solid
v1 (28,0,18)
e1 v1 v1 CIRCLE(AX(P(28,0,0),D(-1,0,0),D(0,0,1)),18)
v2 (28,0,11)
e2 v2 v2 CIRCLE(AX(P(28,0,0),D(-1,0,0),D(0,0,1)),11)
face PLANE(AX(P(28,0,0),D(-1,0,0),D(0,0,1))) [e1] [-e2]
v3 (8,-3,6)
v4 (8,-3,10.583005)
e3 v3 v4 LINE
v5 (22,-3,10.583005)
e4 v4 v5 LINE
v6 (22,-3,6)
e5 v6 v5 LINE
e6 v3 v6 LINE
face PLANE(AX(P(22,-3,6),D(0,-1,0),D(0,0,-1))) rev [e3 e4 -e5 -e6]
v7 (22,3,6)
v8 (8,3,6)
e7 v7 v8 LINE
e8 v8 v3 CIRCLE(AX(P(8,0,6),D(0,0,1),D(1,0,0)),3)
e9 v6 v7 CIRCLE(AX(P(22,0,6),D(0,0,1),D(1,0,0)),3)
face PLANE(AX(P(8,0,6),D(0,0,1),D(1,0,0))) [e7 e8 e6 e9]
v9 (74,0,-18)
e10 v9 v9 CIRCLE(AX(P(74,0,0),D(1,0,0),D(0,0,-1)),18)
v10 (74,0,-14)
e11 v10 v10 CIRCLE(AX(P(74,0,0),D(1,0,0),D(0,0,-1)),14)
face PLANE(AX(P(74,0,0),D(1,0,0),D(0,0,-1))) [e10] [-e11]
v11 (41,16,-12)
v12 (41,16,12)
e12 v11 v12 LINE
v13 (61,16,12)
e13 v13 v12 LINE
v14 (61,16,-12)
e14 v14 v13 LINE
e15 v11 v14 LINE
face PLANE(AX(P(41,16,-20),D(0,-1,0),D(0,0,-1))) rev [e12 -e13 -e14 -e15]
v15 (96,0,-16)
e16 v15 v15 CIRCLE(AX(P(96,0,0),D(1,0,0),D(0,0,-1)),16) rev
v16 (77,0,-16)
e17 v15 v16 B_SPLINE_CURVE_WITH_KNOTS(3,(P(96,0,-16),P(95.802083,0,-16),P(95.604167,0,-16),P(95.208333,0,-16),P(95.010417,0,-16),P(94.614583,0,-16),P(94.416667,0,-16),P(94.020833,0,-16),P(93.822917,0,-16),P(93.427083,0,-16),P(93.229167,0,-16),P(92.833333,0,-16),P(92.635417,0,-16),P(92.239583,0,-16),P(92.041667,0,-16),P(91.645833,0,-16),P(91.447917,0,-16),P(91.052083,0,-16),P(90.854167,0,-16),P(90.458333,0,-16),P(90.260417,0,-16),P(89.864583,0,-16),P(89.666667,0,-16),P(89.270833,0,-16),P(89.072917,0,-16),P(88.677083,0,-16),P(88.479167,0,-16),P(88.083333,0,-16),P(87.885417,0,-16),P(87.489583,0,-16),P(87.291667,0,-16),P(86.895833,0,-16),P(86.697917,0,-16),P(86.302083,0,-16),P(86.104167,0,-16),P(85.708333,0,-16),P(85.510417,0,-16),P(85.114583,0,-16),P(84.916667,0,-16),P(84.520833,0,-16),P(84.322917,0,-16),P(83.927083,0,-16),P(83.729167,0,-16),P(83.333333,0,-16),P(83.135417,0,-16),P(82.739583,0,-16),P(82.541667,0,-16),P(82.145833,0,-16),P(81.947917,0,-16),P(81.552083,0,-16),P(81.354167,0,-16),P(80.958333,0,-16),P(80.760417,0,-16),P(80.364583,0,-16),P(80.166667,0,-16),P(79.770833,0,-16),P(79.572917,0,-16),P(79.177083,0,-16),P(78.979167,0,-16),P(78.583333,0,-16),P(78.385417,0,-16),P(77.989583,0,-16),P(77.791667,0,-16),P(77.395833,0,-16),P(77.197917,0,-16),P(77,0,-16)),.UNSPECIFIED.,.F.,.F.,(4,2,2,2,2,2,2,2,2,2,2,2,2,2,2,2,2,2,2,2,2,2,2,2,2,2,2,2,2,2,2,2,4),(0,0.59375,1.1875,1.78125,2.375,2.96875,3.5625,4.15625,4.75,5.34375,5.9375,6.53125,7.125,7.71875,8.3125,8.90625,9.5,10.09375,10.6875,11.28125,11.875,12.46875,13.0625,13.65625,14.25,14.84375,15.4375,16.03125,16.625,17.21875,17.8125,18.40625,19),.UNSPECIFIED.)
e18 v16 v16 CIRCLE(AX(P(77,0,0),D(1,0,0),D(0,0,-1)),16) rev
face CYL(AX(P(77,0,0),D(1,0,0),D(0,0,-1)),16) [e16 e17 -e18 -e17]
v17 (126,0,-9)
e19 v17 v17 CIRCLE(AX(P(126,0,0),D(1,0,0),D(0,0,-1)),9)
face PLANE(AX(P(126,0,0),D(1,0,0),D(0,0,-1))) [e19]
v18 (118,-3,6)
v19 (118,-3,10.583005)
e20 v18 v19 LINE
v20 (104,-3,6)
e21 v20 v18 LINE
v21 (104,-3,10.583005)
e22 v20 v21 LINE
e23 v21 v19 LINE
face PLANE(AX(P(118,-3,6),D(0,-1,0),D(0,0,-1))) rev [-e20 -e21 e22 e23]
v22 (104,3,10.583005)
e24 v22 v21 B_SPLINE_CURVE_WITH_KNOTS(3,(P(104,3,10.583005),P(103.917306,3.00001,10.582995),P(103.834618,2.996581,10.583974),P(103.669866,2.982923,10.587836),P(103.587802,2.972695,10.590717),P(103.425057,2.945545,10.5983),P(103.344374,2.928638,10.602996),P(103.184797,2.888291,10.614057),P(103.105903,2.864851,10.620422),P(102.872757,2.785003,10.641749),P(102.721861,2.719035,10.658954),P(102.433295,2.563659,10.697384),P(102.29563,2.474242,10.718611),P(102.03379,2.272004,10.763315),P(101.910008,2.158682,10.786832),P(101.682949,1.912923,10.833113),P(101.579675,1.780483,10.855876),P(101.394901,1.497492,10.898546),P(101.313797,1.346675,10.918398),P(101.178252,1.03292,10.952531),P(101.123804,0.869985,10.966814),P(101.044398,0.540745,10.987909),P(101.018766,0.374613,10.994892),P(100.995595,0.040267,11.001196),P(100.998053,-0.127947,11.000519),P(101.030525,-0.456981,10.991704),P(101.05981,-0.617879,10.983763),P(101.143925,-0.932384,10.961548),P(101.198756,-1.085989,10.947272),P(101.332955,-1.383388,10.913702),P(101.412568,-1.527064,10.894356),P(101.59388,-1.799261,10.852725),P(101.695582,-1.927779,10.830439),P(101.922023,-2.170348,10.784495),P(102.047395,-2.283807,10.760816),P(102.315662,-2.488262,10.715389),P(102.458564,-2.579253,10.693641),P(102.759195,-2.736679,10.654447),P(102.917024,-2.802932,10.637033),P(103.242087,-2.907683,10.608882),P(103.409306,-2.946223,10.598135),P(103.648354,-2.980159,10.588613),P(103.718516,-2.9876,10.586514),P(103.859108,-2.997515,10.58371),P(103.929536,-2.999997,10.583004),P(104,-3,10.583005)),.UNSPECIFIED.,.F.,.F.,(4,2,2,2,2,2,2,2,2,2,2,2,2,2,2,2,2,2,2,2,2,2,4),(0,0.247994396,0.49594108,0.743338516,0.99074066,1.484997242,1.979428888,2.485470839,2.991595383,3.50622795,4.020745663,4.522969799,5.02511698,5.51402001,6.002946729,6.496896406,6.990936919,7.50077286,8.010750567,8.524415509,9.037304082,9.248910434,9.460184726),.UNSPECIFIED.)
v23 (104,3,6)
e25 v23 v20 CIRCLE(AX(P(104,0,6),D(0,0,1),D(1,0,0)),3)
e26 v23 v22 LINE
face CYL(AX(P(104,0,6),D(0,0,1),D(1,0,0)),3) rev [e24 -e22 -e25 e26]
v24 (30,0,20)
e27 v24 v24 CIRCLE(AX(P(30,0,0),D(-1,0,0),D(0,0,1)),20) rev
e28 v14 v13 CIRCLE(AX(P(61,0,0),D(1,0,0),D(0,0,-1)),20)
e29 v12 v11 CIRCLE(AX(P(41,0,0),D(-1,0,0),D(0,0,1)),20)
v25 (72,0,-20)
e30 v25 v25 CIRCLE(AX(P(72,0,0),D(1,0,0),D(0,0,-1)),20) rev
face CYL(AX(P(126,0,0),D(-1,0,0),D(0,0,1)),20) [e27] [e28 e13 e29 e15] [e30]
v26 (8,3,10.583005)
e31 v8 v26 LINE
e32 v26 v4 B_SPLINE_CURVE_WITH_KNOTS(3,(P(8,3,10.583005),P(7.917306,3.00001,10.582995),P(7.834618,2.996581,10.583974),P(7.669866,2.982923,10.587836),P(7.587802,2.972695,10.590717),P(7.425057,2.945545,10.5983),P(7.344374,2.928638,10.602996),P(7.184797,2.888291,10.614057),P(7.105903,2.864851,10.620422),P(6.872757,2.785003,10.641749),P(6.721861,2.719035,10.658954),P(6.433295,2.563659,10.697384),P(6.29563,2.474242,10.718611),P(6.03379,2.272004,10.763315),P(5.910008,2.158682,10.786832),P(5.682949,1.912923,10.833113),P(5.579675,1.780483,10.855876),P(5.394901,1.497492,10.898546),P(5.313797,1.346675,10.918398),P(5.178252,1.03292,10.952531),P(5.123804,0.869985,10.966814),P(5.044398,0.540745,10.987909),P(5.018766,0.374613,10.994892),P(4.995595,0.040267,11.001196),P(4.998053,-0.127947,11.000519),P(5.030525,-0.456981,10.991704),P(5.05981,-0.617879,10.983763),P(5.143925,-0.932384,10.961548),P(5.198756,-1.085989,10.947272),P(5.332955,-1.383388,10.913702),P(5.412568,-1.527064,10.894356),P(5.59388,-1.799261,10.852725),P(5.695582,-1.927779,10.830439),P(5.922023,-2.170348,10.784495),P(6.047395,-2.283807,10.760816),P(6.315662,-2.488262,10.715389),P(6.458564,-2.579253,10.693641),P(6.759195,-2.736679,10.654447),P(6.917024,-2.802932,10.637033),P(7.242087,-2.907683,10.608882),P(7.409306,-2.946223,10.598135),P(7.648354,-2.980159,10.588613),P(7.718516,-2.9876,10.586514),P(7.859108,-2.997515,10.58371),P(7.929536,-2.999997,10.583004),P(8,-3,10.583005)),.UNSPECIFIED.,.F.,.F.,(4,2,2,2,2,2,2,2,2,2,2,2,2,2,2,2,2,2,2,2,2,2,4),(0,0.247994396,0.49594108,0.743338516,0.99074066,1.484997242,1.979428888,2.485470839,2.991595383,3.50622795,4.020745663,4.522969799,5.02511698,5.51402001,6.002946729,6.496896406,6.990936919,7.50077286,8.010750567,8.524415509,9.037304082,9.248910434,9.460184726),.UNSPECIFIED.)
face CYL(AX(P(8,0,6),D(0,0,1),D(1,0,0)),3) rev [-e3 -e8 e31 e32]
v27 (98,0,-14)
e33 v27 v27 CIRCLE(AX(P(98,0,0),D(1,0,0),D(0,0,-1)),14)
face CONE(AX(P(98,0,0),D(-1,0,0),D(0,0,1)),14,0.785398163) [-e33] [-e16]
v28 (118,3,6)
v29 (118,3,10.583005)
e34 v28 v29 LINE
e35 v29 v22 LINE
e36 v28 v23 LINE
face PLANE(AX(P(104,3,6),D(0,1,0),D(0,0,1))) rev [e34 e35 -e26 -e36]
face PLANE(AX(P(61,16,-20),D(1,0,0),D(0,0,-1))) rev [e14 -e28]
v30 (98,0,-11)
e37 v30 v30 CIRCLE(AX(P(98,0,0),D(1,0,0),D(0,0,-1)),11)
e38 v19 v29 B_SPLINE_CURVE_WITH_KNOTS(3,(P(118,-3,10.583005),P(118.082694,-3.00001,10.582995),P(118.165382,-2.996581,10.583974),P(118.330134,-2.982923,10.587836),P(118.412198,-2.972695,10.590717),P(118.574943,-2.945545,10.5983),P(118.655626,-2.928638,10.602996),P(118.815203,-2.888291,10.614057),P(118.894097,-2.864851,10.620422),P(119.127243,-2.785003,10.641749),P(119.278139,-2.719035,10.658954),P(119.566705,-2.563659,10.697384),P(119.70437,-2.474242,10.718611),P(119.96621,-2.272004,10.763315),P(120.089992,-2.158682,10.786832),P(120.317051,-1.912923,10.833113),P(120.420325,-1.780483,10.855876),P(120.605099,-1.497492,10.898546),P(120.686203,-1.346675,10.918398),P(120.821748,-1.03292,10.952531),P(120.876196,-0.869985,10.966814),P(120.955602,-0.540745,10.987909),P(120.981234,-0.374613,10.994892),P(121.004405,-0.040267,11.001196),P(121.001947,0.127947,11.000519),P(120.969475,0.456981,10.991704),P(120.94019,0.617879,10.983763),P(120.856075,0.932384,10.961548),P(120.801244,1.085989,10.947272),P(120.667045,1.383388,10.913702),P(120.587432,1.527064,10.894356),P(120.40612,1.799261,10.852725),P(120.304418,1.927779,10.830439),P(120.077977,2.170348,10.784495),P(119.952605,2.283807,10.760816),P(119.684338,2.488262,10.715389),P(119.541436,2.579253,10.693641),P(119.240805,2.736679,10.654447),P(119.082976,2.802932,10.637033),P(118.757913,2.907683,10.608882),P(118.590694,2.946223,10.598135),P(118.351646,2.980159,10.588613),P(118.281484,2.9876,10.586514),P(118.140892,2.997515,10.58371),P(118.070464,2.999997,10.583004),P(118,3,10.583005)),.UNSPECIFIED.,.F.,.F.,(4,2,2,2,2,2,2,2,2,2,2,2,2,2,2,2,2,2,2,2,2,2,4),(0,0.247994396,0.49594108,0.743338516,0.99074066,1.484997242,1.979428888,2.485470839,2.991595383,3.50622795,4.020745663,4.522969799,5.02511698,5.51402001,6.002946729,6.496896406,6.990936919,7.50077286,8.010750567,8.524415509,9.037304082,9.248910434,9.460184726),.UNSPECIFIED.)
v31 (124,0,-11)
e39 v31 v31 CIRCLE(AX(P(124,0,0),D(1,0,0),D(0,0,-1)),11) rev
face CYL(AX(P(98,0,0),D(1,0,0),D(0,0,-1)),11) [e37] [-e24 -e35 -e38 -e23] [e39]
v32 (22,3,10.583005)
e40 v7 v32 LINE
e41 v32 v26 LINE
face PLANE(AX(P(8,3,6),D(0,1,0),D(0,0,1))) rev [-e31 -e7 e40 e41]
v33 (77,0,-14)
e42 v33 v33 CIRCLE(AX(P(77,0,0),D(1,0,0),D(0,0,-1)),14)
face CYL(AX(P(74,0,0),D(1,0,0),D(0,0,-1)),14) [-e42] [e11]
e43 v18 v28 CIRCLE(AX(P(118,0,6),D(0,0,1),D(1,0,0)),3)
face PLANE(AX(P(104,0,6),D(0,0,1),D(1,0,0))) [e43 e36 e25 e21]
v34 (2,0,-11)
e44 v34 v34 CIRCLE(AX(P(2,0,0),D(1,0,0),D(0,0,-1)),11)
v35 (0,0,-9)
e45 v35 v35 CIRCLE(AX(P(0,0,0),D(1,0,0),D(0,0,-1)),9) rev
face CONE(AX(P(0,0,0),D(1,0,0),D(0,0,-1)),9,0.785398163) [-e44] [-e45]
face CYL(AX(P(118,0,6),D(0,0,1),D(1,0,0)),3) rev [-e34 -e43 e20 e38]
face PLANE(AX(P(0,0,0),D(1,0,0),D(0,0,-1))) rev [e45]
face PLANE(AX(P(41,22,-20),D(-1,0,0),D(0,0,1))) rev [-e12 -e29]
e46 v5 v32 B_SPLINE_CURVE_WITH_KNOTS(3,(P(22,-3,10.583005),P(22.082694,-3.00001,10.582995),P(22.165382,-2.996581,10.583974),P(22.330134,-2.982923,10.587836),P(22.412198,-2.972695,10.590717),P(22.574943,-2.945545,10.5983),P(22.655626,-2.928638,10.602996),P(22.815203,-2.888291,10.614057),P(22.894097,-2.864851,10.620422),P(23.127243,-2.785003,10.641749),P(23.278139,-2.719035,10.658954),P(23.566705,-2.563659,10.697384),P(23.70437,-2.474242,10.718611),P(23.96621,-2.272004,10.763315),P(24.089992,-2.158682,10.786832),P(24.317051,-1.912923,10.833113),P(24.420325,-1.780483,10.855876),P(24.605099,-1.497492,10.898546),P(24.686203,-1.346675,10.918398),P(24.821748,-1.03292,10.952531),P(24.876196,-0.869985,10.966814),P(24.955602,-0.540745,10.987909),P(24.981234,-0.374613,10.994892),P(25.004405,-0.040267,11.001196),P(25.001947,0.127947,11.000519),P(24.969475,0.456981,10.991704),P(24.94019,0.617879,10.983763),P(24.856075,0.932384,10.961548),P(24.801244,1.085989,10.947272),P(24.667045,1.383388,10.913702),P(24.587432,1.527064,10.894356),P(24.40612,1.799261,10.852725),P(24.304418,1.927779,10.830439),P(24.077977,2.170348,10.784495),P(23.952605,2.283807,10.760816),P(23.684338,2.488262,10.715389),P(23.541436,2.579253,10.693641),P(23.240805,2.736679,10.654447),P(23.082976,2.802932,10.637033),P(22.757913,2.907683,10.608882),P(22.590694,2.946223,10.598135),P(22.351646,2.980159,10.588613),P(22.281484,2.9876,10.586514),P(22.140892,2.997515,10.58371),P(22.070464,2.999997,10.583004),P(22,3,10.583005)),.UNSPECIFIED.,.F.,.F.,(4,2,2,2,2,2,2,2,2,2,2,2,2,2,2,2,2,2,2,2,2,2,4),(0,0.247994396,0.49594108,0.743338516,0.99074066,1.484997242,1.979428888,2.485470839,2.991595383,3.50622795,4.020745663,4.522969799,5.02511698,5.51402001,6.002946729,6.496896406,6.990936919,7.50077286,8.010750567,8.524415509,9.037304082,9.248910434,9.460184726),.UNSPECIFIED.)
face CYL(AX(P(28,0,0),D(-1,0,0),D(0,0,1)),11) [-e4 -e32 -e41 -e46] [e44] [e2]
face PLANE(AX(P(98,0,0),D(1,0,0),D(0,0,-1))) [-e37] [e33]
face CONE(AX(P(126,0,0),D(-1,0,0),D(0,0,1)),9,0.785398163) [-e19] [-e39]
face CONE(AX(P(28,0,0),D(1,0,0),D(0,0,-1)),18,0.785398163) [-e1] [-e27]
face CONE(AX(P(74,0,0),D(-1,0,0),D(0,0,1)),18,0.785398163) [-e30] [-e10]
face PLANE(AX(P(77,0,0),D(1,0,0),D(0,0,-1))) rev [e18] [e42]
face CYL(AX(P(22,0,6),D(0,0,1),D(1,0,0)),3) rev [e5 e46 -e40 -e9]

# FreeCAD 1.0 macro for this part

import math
import FreeCAD as App
import Part
import Sketcher

V = App.Vector
Q = App.Units.Quantity


def edges_at(feature, points):
    """Names of the edges that pass closest to the given points."""
    edges = feature.Shape.Edges
    near = lambda p: min(range(len(edges)), key=lambda i: edges[i].distToShape(Part.Vertex(*p))[0])
    return sorted({f"Edge{near(p) + 1}" for p in points})


def add_polygon(sketch, points):
    """Adds a closed chain of lines whose ends are joined by coincident constraints."""
    first, n = sketch.GeometryCount, len(points)
    for a, b in zip(points, points[1:] + points[:1]):
        sketch.addGeometry(Part.LineSegment(App.Vector(*a, 0), App.Vector(*b, 0)), False)
    for i in range(n):
        sketch.addConstraint(Sketcher.Constraint("Coincident", first + i, 2, first + (i + 1) % n, 1))

doc = App.newDocument("Part")
params = doc.addObject("Spreadsheet::Sheet", "Params")
for row, (alias, value) in enumerate([
    ("sketch1_diameter", "40 mm"),
    ("pad1_length", "126 mm"),
    ("sketch2_diameter", "22 mm"),
    ("pocket1_length", "28 mm"),
    ("sketch3_diameter", "22 mm"),
    ("pocket2_length", "28 mm"),
    ("sketch4_diameter", "32 mm"),
    ("pocket3_length", "21 mm"),
    ("sketch5_diameter", "28 mm"),
    ("pocket4_length", "3 mm"),
    ("chamfer_size", "2 mm"),
    ("sketch6_width", "20 mm"),
    ("sketch6_height", "6 mm"),
    ("sketch7_radius", "3 mm"),
    ("sketch7_width", "14 mm"),
    ("pocket6_length", "5 mm"),
], start=1):
    params.set(f"A{row}", alias)
    params.set(f"B{row}", "=" + value)
    params.setAlias(f"B{row}", alias)

body = doc.addObject("PartDesign::Body", "Body")

# Sketch on YZ plane
sketch1 = body.newObject("Sketcher::SketchObject", "Sketch")
sketch1.AttachmentSupport = (doc.getObject("YZ_Plane"), [""])
sketch1.MapMode = "FlatFace"
sketch1.addGeometry(Part.Circle(V(0, 0, 0), V(0, 0, 1), 20), False)
sketch1.addConstraint([
    Sketcher.Constraint("Coincident", 0, 3, -1, 1),
    Sketcher.Constraint("Diameter", 0, Q("40 mm")),
])
sketch1.setExpression("Constraints[1]", "Params.sketch1_diameter")
pad1 = body.newObject("PartDesign::Pad", "Pad")
pad1.Profile = sketch1
pad1.setExpression("Length", "Params.pad1_length")

# Sketch on YZ plane
sketch2 = body.newObject("Sketcher::SketchObject", "Sketch001")
sketch2.AttachmentSupport = (doc.getObject("YZ_Plane"), [""])
sketch2.MapMode = "FlatFace"
add_polygon(sketch2, [(34.812, -34.812), (-34.812, -34.812), (-34.812, 34.812), (34.812, 34.812)])  # lines 0-3
sketch2.addGeometry(Part.Circle(V(0, 0, 0), V(0, 0, 1), 11), False)  # 4
sketch2.addConstraint([
    Sketcher.Constraint("Horizontal", 0),
    Sketcher.Constraint("Vertical", 1),
    Sketcher.Constraint("Horizontal", 2),
    Sketcher.Constraint("Vertical", 3),
    Sketcher.Constraint("Coincident", 4, 3, -1, 1),
    Sketcher.Constraint("Symmetric", 0, 2, 2, 2, -1, 1),
    Sketcher.Constraint("Equal", 2, 1),
    Sketcher.Constraint("Diameter", 4, Q("22 mm")),
    Sketcher.Constraint("DistanceX", 0, 2, 0, 1, Q("69.624 mm")),
])
sketch2.setExpression("Constraints[11]", "Params.sketch2_diameter")
pocket1 = body.newObject("PartDesign::Pocket", "Pocket")
pocket1.Profile = sketch2
pocket1.setExpression("Length", "Params.pocket1_length")
pocket1.Reversed = True

# Sketch on YZ plane
sketch3 = body.newObject("Sketcher::SketchObject", "Sketch002")
sketch3.AttachmentSupport = (doc.getObject("YZ_Plane"), [""])
sketch3.MapMode = "FlatFace"
sketch3.AttachmentOffset = App.Placement(V(0, 0, 126), App.Rotation())
add_polygon(sketch3, [(34.812, 34.812), (-34.812, 34.812), (-34.812, -34.812), (34.812, -34.812)])  # lines 0-3
sketch3.addGeometry(Part.Circle(V(0, 0, 0), V(0, 0, 1), 11), False)  # 4
sketch3.addConstraint([
    Sketcher.Constraint("Horizontal", 0),
    Sketcher.Constraint("Vertical", 1),
    Sketcher.Constraint("Horizontal", 2),
    Sketcher.Constraint("Vertical", 3),
    Sketcher.Constraint("Coincident", 4, 3, -1, 1),
    Sketcher.Constraint("Symmetric", 0, 2, 2, 2, -1, 1),
    Sketcher.Constraint("Equal", 2, 1),
    Sketcher.Constraint("Diameter", 4, Q("22 mm")),
    Sketcher.Constraint("DistanceX", 0, 2, 0, 1, Q("69.624 mm")),
])
sketch3.setExpression("Constraints[11]", "Params.sketch3_diameter")
pocket2 = body.newObject("PartDesign::Pocket", "Pocket001")
pocket2.Profile = sketch3
pocket2.setExpression("Length", "Params.pocket2_length")

# Sketch on YZ plane
sketch4 = body.newObject("Sketcher::SketchObject", "Sketch003")
sketch4.AttachmentSupport = (doc.getObject("YZ_Plane"), [""])
sketch4.MapMode = "FlatFace"
sketch4.AttachmentOffset = App.Placement(V(0, 0, 98), App.Rotation())
add_polygon(sketch4, [(34.812, 34.812), (-34.812, 34.812), (-34.812, -34.812), (34.812, -34.812)])  # lines 0-3
sketch4.addGeometry(Part.Circle(V(0, 0, 0), V(0, 0, 1), 16), False)  # 4
sketch4.addConstraint([
    Sketcher.Constraint("Horizontal", 0),
    Sketcher.Constraint("Vertical", 1),
    Sketcher.Constraint("Horizontal", 2),
    Sketcher.Constraint("Vertical", 3),
    Sketcher.Constraint("Coincident", 4, 3, -1, 1),
    Sketcher.Constraint("Symmetric", 0, 2, 2, 2, -1, 1),
    Sketcher.Constraint("Equal", 2, 1),
    Sketcher.Constraint("Diameter", 4, Q("32 mm")),
    Sketcher.Constraint("DistanceX", 0, 2, 0, 1, Q("69.624 mm")),
])
sketch4.setExpression("Constraints[11]", "Params.sketch4_diameter")
pocket3 = body.newObject("PartDesign::Pocket", "Pocket002")
pocket3.Profile = sketch4
pocket3.setExpression("Length", "Params.pocket3_length")

# Sketch on YZ plane
sketch5 = body.newObject("Sketcher::SketchObject", "Sketch004")
sketch5.AttachmentSupport = (doc.getObject("YZ_Plane"), [""])
sketch5.MapMode = "FlatFace"
sketch5.AttachmentOffset = App.Placement(V(0, 0, 77), App.Rotation())
add_polygon(sketch5, [(34.812, 34.812), (-34.812, 34.812), (-34.812, -34.812), (34.812, -34.812)])  # lines 0-3
sketch5.addGeometry(Part.Circle(V(0, 0, 0), V(0, 0, 1), 14), False)  # 4
sketch5.addConstraint([
    Sketcher.Constraint("Horizontal", 0),
    Sketcher.Constraint("Vertical", 1),
    Sketcher.Constraint("Horizontal", 2),
    Sketcher.Constraint("Vertical", 3),
    Sketcher.Constraint("Coincident", 4, 3, -1, 1),
    Sketcher.Constraint("Symmetric", 0, 2, 2, 2, -1, 1),
    Sketcher.Constraint("Equal", 2, 1),
    Sketcher.Constraint("Diameter", 4, Q("28 mm")),
    Sketcher.Constraint("DistanceX", 0, 2, 0, 1, Q("69.624 mm")),
])
sketch5.setExpression("Constraints[11]", "Params.sketch5_diameter")
pocket4 = body.newObject("PartDesign::Pocket", "Pocket003")
pocket4.Profile = sketch5
pocket4.setExpression("Length", "Params.pocket4_length")
doc.recompute()

chamfer = body.newObject("PartDesign::Chamfer", "Chamfer")
chamfer.Base = (pocket4, edges_at(pocket4, [
    (0, 0, -11),
    (126, 0, -11),
    (98, 0, 16),
    (74, 0, 20),
    (28, 0, 20),
]))
chamfer.setExpression("Size", "Params.chamfer_size")

# Sketch on XY plane
sketch6 = body.newObject("Sketcher::SketchObject", "Sketch005")
sketch6.AttachmentSupport = (doc.getObject("XY_Plane"), [""])
sketch6.MapMode = "FlatFace"
add_polygon(sketch6, [(41, 22), (41, 16), (61, 16), (61, 22)])  # lines 0-3
sketch6.addConstraint([
    Sketcher.Constraint("Vertical", 0),
    Sketcher.Constraint("Horizontal", 1),
    Sketcher.Constraint("Vertical", 2),
    Sketcher.Constraint("Horizontal", 3),
    Sketcher.Constraint("DistanceX", 1, 1, 1, 2, Q("20 mm")),
    Sketcher.Constraint("DistanceY", 0, 2, 0, 1, Q("6 mm")),
    Sketcher.Constraint("DistanceX", -1, 1, 0, 2, Q("41 mm")),
    Sketcher.Constraint("DistanceY", -1, 1, 0, 2, Q("16 mm")),
])
sketch6.setExpression("Constraints[8]", "Params.sketch6_width")
sketch6.setExpression("Constraints[9]", "Params.sketch6_height")
pocket5 = body.newObject("PartDesign::Pocket", "Pocket004")
pocket5.Profile = sketch6
pocket5.Type = "ThroughAll"
pocket5.Midplane = True

# Sketch on XY plane
sketch7 = body.newObject("Sketcher::SketchObject", "Sketch006")
sketch7.AttachmentSupport = (doc.getObject("XY_Plane"), [""])
sketch7.MapMode = "FlatFace"
sketch7.AttachmentOffset = App.Placement(V(0, 0, 11), App.Rotation())
sketch7.addGeometry([
    Part.LineSegment(V(22, 3, 0), V(8, 3, 0)),  # 0
    Part.ArcOfCircle(Part.Circle(V(8, 0, 0), V(0, 0, 1), 3), math.radians(90), math.radians(270)),  # 1
    Part.LineSegment(V(8, -3, 0), V(22, -3, 0)),  # 2
    Part.ArcOfCircle(Part.Circle(V(22, 0, 0), V(0, 0, 1), 3), math.radians(-90), math.radians(90)),  # 3
    Part.LineSegment(V(118, 3, 0), V(104, 3, 0)),  # 4
    Part.ArcOfCircle(Part.Circle(V(104, 0, 0), V(0, 0, 1), 3), math.radians(90), math.radians(270)),  # 5
    Part.LineSegment(V(104, -3, 0), V(118, -3, 0)),  # 6
    Part.ArcOfCircle(Part.Circle(V(118, 0, 0), V(0, 0, 1), 3), math.radians(-90), math.radians(90)),  # 7
], False)
sketch7.addConstraint([
    Sketcher.Constraint("Tangent", 0, 2, 1, 1),
    Sketcher.Constraint("Tangent", 1, 2, 2, 1),
    Sketcher.Constraint("Tangent", 2, 2, 3, 1),
    Sketcher.Constraint("Tangent", 3, 2, 0, 1),
    Sketcher.Constraint("Tangent", 4, 2, 5, 1),
    Sketcher.Constraint("Tangent", 5, 2, 6, 1),
    Sketcher.Constraint("Tangent", 6, 2, 7, 1),
    Sketcher.Constraint("Tangent", 7, 2, 4, 1),
    Sketcher.Constraint("Horizontal", 0),
    Sketcher.Constraint("Horizontal", 2),
    Sketcher.Constraint("Horizontal", 4),
    Sketcher.Constraint("Horizontal", 6),
    Sketcher.Constraint("Equal", 3, 5),
    Sketcher.Constraint("PointOnObject", 1, 3, -1),
    Sketcher.Constraint("PointOnObject", 5, 3, -1),
    Sketcher.Constraint("Equal", 2, 4),
    Sketcher.Constraint("Radius", 1, Q("3 mm")),
    Sketcher.Constraint("DistanceX", 0, 2, 0, 1, Q("14 mm")),
    Sketcher.Constraint("DistanceX", -1, 1, 1, 3, Q("8 mm")),
    Sketcher.Constraint("DistanceX", -1, 1, 5, 3, Q("104 mm")),
])
sketch7.setExpression("Constraints[16]", "Params.sketch7_radius")
sketch7.setExpression("Constraints[17]", "Params.sketch7_width")
pocket6 = body.newObject("PartDesign::Pocket", "Pocket005")
pocket6.Profile = sketch7
pocket6.setExpression("Length", "Params.pocket6_length")

doc.recompute()
